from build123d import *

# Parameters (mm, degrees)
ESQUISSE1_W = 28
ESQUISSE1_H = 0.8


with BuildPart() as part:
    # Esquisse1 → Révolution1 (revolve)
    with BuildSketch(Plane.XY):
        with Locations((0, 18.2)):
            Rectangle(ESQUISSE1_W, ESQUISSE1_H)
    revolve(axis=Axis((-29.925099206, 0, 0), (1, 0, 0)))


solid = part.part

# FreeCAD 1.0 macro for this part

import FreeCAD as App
import Part
import Sketcher

V = App.Vector
Q = App.Units.Quantity


def add_polygon(sketch, points):
    """Adds a closed chain of lines whose ends are joined by coincident constraints."""
    first, n = sketch.GeometryCount, len(points)
    for a, b in zip(points, points[1:] + points[:1]):
        sketch.addGeometry(Part.LineSegment(App.Vector(*a, 0), App.Vector(*b, 0)), False)
    for i in range(n):
        sketch.addConstraint(Sketcher.Constraint("Coincident", first + i, 2, first + (i + 1) % n, 1))

doc = App.newDocument("Part")
body = doc.addObject("PartDesign::Body", "Body")

# Sketch on XY plane
sketch1 = body.newObject("Sketcher::SketchObject", "Sketch")
sketch1.AttachmentSupport = (doc.getObject("XY_Plane"), [""])
sketch1.MapMode = "FlatFace"
add_polygon(sketch1, [(-14, 18.6), (-14, 17.8), (14, 17.8), (14, 18.6)])  # lines 0-3
sketch1.addConstraint([
    Sketcher.Constraint("Vertical", 0),
    Sketcher.Constraint("Horizontal", 1),
    Sketcher.Constraint("Vertical", 2),
    Sketcher.Constraint("Horizontal", 3),
    Sketcher.Constraint("DistanceX", 1, 1, 1, 2, Q("28 mm")),
    Sketcher.Constraint("DistanceY", 0, 2, 0, 1, Q("0.8 mm")),
    Sketcher.Constraint("DistanceX", 0, 2, -1, 1, Q("14 mm")),
    Sketcher.Constraint("DistanceY", -1, 1, 0, 2, Q("17.8 mm")),
])
revolution = body.newObject("PartDesign::Revolution", "Revolution")
revolution.Profile = sketch1
revolution.ReferenceAxis = (sketch1, ["H_Axis"])
revolution.Angle = 360

doc.recompute()
